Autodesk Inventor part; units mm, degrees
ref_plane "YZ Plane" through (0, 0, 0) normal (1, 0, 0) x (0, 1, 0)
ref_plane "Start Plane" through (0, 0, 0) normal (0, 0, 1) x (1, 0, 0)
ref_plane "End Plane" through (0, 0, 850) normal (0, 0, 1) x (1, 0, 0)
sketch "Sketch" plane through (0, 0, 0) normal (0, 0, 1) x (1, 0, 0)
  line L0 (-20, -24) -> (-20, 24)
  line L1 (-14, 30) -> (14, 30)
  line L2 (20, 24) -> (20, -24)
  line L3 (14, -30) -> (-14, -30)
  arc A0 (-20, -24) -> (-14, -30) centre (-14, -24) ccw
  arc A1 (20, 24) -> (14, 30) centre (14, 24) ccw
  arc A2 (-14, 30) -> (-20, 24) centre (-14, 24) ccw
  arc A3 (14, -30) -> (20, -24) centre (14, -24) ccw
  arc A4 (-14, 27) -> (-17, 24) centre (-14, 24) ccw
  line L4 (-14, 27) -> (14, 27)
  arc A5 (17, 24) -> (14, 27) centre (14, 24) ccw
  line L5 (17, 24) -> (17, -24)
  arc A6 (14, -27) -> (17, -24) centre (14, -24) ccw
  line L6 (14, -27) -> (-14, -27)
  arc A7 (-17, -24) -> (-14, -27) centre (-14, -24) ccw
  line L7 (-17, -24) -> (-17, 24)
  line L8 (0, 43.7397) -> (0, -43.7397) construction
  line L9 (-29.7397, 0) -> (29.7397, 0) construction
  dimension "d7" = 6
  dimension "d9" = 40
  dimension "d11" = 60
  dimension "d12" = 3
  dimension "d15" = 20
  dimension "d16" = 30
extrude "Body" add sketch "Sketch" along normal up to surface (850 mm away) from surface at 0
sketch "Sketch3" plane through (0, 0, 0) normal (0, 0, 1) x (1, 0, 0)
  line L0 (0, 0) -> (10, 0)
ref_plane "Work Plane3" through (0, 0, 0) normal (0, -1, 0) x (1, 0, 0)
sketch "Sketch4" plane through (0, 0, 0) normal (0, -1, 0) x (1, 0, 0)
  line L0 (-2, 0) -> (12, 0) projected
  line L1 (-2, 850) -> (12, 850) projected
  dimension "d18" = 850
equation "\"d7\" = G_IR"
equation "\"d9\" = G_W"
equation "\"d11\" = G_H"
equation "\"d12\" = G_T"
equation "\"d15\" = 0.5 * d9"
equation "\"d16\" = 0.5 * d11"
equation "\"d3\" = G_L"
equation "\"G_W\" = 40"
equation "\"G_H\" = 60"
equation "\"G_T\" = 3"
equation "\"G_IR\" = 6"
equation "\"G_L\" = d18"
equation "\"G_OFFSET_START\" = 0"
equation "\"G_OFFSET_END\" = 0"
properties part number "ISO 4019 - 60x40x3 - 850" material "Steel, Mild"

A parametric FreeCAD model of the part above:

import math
import FreeCAD as App
import Part
import Sketcher
Q = App.Units.Quantity

doc = App.newDocument("Part")
body = doc.addObject("PartDesign::Body", "Body")

# Sketch on XY plane
sketch1 = doc.addObject("Sketcher::SketchObject", "Sketch")
body.addObject(sketch1)
sketch1.AttachmentSupport = (doc.XY_Plane, [""])
sketch1.MapMode = "FlatFace"
sketch1.addGeometry(Part.LineSegment(App.Vector(-20, 24, 0), App.Vector(-20, -24, 0)), False)
sketch1.addGeometry(Part.ArcOfCircle(Part.Circle(App.Vector(-14, -24, 0), App.Vector(0, 0, 1), 6), math.radians(180), math.radians(270)), False)
sketch1.addGeometry(Part.LineSegment(App.Vector(-14, -30, 0), App.Vector(14, -30, 0)), False)
sketch1.addGeometry(Part.ArcOfCircle(Part.Circle(App.Vector(14, -24, 0), App.Vector(0, 0, 1), 6), math.radians(-90), math.radians(0)), False)
sketch1.addGeometry(Part.LineSegment(App.Vector(20, -24, 0), App.Vector(20, 24, 0)), False)
sketch1.addGeometry(Part.ArcOfCircle(Part.Circle(App.Vector(14, 24, 0), App.Vector(0, 0, 1), 6), math.radians(0), math.radians(90)), False)
sketch1.addGeometry(Part.LineSegment(App.Vector(14, 30, 0), App.Vector(-14, 30, 0)), False)
sketch1.addGeometry(Part.ArcOfCircle(Part.Circle(App.Vector(-14, 24, 0), App.Vector(0, 0, 1), 6), math.radians(90), math.radians(180)), False)
sketch1.addGeometry(Part.ArcOfCircle(Part.Circle(App.Vector(-14, 24, 0), App.Vector(0, 0, 1), 3), math.radians(90), math.radians(180)), False)
sketch1.addGeometry(Part.LineSegment(App.Vector(-14, 27, 0), App.Vector(14, 27, 0)), False)
sketch1.addGeometry(Part.ArcOfCircle(Part.Circle(App.Vector(14, 24, 0), App.Vector(0, 0, 1), 3), math.radians(0), math.radians(90)), False)
sketch1.addGeometry(Part.LineSegment(App.Vector(17, 24, 0), App.Vector(17, -24, 0)), False)
sketch1.addGeometry(Part.ArcOfCircle(Part.Circle(App.Vector(14, -24, 0), App.Vector(0, 0, 1), 3), math.radians(-90), math.radians(0)), False)
sketch1.addGeometry(Part.LineSegment(App.Vector(14, -27, 0), App.Vector(-14, -27, 0)), False)
sketch1.addGeometry(Part.ArcOfCircle(Part.Circle(App.Vector(-14, -24, 0), App.Vector(0, 0, 1), 3), math.radians(180), math.radians(270)), False)
sketch1.addGeometry(Part.LineSegment(App.Vector(-17, -24, 0), App.Vector(-17, 24, 0)), False)
sketch1.addConstraint(Sketcher.Constraint("Tangent", 0, 2, 1, 1))
sketch1.addConstraint(Sketcher.Constraint("Tangent", 1, 2, 2, 1))
sketch1.addConstraint(Sketcher.Constraint("Tangent", 2, 2, 3, 1))
sketch1.addConstraint(Sketcher.Constraint("Tangent", 3, 2, 4, 1))
sketch1.addConstraint(Sketcher.Constraint("Tangent", 4, 2, 5, 1))
sketch1.addConstraint(Sketcher.Constraint("Tangent", 5, 2, 6, 1))
sketch1.addConstraint(Sketcher.Constraint("Tangent", 6, 2, 7, 1))
sketch1.addConstraint(Sketcher.Constraint("Tangent", 7, 2, 0, 1))
sketch1.addConstraint(Sketcher.Constraint("Tangent", 8, 1, 9, 1))
sketch1.addConstraint(Sketcher.Constraint("Tangent", 9, 2, 10, 2))
sketch1.addConstraint(Sketcher.Constraint("Tangent", 10, 1, 11, 1))
sketch1.addConstraint(Sketcher.Constraint("Tangent", 11, 2, 12, 2))
sketch1.addConstraint(Sketcher.Constraint("Tangent", 12, 1, 13, 1))
sketch1.addConstraint(Sketcher.Constraint("Tangent", 13, 2, 14, 2))
sketch1.addConstraint(Sketcher.Constraint("Tangent", 14, 1, 15, 1))
sketch1.addConstraint(Sketcher.Constraint("Tangent", 15, 2, 8, 2))
sketch1.addConstraint(Sketcher.Constraint("Vertical", 0))
sketch1.addConstraint(Sketcher.Constraint("Horizontal", 2))
sketch1.addConstraint(Sketcher.Constraint("Vertical", 4))
sketch1.addConstraint(Sketcher.Constraint("Horizontal", 6))
sketch1.addConstraint(Sketcher.Constraint("Horizontal", 9))
sketch1.addConstraint(Sketcher.Constraint("Vertical", 11))
sketch1.addConstraint(Sketcher.Constraint("Horizontal", 13))
sketch1.addConstraint(Sketcher.Constraint("Vertical", 15))
sketch1.addConstraint(Sketcher.Constraint("Coincident", 8, 3, 7, 3))
sketch1.addConstraint(Sketcher.Constraint("Coincident", 10, 3, 5, 3))
sketch1.addConstraint(Sketcher.Constraint("Coincident", 12, 3, 3, 3))
sketch1.addConstraint(Sketcher.Constraint("Equal", 1, 3))
sketch1.addConstraint(Sketcher.Constraint("Equal", 3, 5))
sketch1.addConstraint(Sketcher.Constraint("Equal", 5, 7))
sketch1.addConstraint(Sketcher.Constraint("Equal", 12, 14))
sketch1.addConstraint(Sketcher.Constraint("Symmetric", 1, 3, 5, 3, -1, 1))
sketch1.addConstraint(Sketcher.Constraint("Radius", 1, Q("6 mm")))
sketch1.addConstraint(Sketcher.Constraint("Radius", 8, Q("3 mm")))
sketch1.addConstraint(Sketcher.Constraint("DistanceX", 0, 2, -1, 1, Q("20 mm")))
sketch1.addConstraint(Sketcher.Constraint("DistanceY", 1, 2, -1, 1, Q("30 mm")))
pad1 = doc.addObject("PartDesign::Pad", "Pad")
body.addObject(pad1)
pad1.Profile = sketch1
pad1.Length = 850

doc.recompute()
